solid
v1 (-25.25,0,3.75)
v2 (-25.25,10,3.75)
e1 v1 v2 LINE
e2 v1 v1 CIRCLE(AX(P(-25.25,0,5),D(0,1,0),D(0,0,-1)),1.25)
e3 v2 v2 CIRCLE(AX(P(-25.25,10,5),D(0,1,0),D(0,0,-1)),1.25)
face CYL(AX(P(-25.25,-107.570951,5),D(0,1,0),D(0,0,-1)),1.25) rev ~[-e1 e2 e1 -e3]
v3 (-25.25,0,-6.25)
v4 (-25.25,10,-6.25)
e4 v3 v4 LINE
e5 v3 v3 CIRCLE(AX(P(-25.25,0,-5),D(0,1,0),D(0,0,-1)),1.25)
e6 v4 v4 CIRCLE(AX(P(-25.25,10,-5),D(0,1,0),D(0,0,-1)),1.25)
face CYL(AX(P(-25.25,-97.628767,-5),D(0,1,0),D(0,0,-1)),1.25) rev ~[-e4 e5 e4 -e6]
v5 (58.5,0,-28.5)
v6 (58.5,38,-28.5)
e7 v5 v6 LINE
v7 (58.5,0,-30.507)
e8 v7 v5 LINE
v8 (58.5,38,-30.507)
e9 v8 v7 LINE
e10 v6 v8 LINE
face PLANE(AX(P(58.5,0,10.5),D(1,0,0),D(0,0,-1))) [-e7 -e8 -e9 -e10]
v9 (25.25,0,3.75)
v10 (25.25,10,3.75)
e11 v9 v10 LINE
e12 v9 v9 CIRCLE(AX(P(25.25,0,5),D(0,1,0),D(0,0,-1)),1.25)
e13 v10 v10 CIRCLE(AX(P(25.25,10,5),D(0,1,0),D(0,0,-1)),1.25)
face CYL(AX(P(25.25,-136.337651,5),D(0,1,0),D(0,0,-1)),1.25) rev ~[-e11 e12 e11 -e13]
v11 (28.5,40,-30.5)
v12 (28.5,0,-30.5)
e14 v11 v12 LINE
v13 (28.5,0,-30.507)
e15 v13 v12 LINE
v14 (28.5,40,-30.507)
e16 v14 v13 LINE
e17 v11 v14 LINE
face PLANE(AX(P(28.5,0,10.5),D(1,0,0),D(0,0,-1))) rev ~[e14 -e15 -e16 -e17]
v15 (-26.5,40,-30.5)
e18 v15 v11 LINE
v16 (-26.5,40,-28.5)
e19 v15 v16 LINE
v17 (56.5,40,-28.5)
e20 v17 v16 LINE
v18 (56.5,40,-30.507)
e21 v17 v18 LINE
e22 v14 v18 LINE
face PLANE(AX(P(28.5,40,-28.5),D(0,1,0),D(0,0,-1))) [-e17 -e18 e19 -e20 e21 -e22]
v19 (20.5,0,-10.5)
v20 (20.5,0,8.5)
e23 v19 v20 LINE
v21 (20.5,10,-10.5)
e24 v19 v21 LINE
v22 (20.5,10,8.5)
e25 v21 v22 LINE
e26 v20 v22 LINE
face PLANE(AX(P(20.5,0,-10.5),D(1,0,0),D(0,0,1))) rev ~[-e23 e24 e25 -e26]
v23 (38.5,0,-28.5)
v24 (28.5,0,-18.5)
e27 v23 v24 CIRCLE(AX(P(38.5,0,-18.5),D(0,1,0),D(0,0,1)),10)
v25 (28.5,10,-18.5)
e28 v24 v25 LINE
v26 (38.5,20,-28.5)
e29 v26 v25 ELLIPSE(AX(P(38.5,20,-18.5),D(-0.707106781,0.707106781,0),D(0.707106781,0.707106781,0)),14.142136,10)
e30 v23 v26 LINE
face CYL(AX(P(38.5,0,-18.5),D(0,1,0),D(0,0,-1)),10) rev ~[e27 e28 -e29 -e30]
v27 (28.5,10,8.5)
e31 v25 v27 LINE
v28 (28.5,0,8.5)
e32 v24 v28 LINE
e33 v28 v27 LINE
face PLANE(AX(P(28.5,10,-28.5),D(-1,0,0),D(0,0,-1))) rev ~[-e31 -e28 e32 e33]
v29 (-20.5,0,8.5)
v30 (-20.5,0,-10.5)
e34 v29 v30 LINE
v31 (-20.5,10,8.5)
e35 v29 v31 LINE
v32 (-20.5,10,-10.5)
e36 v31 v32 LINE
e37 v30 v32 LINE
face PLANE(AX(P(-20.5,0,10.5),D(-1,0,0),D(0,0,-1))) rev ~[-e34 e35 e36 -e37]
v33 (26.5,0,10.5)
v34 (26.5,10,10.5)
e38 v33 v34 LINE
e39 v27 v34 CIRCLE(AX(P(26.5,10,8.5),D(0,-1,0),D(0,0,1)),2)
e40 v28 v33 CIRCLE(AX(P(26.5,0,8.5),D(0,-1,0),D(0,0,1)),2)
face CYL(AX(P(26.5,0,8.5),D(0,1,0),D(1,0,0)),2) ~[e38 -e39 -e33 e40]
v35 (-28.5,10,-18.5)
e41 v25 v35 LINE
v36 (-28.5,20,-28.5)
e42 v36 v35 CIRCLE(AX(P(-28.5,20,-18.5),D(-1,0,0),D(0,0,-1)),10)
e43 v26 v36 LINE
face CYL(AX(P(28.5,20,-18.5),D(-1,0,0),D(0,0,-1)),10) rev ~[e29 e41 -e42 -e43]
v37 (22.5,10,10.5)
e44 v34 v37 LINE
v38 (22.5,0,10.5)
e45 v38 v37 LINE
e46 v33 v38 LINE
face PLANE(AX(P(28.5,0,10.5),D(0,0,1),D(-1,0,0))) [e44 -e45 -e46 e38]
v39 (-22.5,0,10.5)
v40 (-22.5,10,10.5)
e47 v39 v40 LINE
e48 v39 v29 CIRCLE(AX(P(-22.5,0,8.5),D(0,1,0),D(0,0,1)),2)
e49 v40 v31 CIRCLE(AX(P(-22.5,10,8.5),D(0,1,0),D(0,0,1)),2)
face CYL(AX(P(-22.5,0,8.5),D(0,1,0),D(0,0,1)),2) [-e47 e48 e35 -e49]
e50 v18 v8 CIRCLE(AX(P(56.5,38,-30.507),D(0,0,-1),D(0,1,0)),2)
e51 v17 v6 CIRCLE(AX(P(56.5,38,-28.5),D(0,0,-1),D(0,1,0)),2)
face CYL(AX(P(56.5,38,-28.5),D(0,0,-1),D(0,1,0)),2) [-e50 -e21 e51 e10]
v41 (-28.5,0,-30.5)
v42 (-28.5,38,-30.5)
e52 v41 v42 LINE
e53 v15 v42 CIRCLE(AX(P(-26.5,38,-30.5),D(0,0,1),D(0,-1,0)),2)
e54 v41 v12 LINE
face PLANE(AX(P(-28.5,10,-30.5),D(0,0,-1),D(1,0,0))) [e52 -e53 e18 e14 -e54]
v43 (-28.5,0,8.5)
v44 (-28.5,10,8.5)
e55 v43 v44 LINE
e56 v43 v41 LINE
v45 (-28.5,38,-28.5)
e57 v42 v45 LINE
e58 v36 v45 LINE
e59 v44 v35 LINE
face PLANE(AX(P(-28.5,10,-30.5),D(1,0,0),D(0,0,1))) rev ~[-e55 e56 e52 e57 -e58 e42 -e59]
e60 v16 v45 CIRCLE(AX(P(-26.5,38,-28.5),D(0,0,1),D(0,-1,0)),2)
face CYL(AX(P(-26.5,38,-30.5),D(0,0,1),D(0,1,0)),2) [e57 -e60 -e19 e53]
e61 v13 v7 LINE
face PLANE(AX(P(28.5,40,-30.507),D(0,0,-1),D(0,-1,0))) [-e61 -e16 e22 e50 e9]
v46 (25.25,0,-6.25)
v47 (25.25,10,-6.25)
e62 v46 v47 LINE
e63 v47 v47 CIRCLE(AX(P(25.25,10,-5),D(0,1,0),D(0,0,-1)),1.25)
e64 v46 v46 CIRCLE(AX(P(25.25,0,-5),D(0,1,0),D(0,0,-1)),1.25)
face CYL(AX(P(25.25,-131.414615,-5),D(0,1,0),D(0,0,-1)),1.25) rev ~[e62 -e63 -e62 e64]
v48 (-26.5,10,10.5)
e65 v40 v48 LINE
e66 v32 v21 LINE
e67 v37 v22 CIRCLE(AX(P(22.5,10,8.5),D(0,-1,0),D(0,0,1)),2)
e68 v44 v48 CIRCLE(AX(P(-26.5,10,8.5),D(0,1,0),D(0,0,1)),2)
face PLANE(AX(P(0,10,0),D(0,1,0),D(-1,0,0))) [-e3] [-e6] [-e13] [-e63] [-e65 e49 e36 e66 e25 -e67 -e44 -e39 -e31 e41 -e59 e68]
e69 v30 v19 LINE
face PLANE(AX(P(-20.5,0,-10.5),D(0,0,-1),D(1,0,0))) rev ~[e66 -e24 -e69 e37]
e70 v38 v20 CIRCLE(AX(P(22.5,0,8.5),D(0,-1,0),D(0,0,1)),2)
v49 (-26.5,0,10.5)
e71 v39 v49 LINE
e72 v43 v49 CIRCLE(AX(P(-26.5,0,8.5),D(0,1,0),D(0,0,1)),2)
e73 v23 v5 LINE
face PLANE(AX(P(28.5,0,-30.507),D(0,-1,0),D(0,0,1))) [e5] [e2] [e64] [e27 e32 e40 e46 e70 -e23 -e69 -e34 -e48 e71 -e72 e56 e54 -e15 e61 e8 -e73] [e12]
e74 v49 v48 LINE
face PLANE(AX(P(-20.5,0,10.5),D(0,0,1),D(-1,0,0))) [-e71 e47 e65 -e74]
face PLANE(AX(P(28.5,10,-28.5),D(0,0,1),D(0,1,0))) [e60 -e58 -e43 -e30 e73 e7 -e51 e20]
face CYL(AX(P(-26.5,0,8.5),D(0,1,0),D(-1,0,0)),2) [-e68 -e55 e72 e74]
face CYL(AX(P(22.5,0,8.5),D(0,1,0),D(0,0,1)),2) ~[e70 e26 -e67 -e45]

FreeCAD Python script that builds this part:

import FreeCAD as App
import Part
import Sketcher
from FreeCAD import Vector


def edges_at(feature, points):
    """Names of the edges that pass closest to the given points."""
    edges = feature.Shape.Edges
    near = lambda p: min(range(len(edges)), key=lambda i: edges[i].distToShape(Part.Vertex(*p))[0])
    return sorted({f"Edge{near(p) + 1}" for p in points})


def add_polygon(sketch, points):
    """Adds a closed chain of lines whose ends are joined by coincident constraints."""
    first, n = sketch.GeometryCount, len(points)
    for a, b in zip(points, points[1:] + points[:1]):
        sketch.addGeometry(Part.LineSegment(App.Vector(*a, 0), App.Vector(*b, 0)), False)
    for i in range(n):
        sketch.addConstraint(Sketcher.Constraint("Coincident", first + i, 2, first + (i + 1) % n, 1))

doc = App.newDocument("Part")
body = doc.addObject("PartDesign::Body", "Body")

# Sketch on XZ plane
sketch1 = body.newObject("Sketcher::SketchObject", "Sketch")
sketch1.AttachmentSupport = (doc.getObject("XZ_Plane"), [""])
sketch1.MapMode = "FlatFace"
add_polygon(sketch1, [(20.5, -10.5), (20.5, 10.5), (28.5, 10.5), (28.5, -30.5), (-28.5, -30.5), (-28.5, 10.5), (-20.5, 10.5), (-20.5, -10.5)])  # lines 0-7
sketch1.addConstraint(Sketcher.Constraint("Vertical", 0))
sketch1.addConstraint(Sketcher.Constraint("Horizontal", 1))
sketch1.addConstraint(Sketcher.Constraint("Vertical", 2))
sketch1.addConstraint(Sketcher.Constraint("Horizontal", 3))
sketch1.addConstraint(Sketcher.Constraint("Vertical", 4))
sketch1.addConstraint(Sketcher.Constraint("Horizontal", 5))
sketch1.addConstraint(Sketcher.Constraint("Vertical", 6))
sketch1.addConstraint(Sketcher.Constraint("Horizontal", 7))
sketch1.addConstraint(Sketcher.Constraint("Symmetric", 0, 2, 6, 2, -1, 1))
sketch1.addConstraint(Sketcher.Constraint("Symmetric", 1, 2, 4, 2, -2))
sketch1.addConstraint(Sketcher.Constraint("Equal", 7, 2))
sketch1.addConstraint(Sketcher.Constraint("DistanceX", 1, 1, 1, 2, 8.0))
sketch1.addConstraint(Sketcher.Constraint("DistanceX", 7, 1, 7, 2, 41.0))
sketch1.addConstraint(Sketcher.Constraint("DistanceY", 0, 1, 0, 2, 21.0))
pad1 = body.newObject("PartDesign::Pad", "Pad")
pad1.Profile = sketch1
pad1.Length = 10
pad1.Reversed = True

# Sketch on XZ plane
sketch2 = body.newObject("Sketcher::SketchObject", "Sketch001")
sketch2.AttachmentSupport = (doc.getObject("XZ_Plane"), [""])
sketch2.MapMode = "FlatFace"
sketch2.addGeometry(Part.Circle(Vector(-25.25, 5, 0), Vector(0, 0, 1), 1.25), False)
sketch2.addGeometry(Part.Circle(Vector(-25.25, -5, 0), Vector(0, 0, 1), 1.25), False)
sketch2.addGeometry(Part.Circle(Vector(25.25, 5, 0), Vector(0, 0, 1), 1.25), False)
sketch2.addGeometry(Part.Circle(Vector(25.25, -5, 0), Vector(0, 0, 1), 1.25), False)
sketch2.addConstraint(Sketcher.Constraint("Equal", 0, 1))
sketch2.addConstraint(Sketcher.Constraint("Equal", 1, 2))
sketch2.addConstraint(Sketcher.Constraint("Equal", 2, 3))
sketch2.addConstraint(Sketcher.Constraint("Symmetric", 1, 3, 2, 3, -1, 1))
sketch2.addConstraint(Sketcher.Constraint("Symmetric", 0, 3, 3, 3, -1, 1))
sketch2.addConstraint(Sketcher.Constraint("Symmetric", 0, 3, 2, 3, -2))
sketch2.addConstraint(Sketcher.Constraint("Diameter", 0, 2.5))
sketch2.addConstraint(Sketcher.Constraint("DistanceY", -1, 1, 0, 3, 5.0))
sketch2.addConstraint(Sketcher.Constraint("DistanceX", 0, 3, 2, 3, 50.5))
doc.recompute()
hole = body.newObject("PartDesign::Hole", "Hole")
hole.Profile = sketch2
hole.ThreadType = "None"
hole.Diameter = 2.5
hole.DepthType = "ThroughAll"

# Sketch on XZ plane
sketch3 = body.newObject("Sketcher::SketchObject", "Sketch002")
sketch3.AttachmentSupport = (doc.getObject("XZ_Plane"), [""])
sketch3.MapMode = "FlatFace"
sketch3.AttachmentOffset = App.Placement(Vector(0, 0, -10), App.Rotation())
add_polygon(sketch3, [(28.5, -30.5), (-28.5, -30.5), (-28.5, -28.5), (28.5, -28.5)])  # lines 0-3
sketch3.addConstraint(Sketcher.Constraint("Horizontal", 0))
sketch3.addConstraint(Sketcher.Constraint("Vertical", 1))
sketch3.addConstraint(Sketcher.Constraint("Horizontal", 2))
sketch3.addConstraint(Sketcher.Constraint("Vertical", 3))
sketch3.addConstraint(Sketcher.Constraint("DistanceY", 1, 1, 1, 2, 2.0))
sketch3.addConstraint(Sketcher.Constraint("DistanceX", 0, 2, 0, 1, 57.0))
sketch3.addConstraint(Sketcher.Constraint("DistanceX", 0, 2, -1, 1, 28.5))
sketch3.addConstraint(Sketcher.Constraint("DistanceY", 0, 2, -1, 1, 30.5))
pad2 = body.newObject("PartDesign::Pad", "Pad001")
pad2.Profile = sketch3
pad2.Length = 30
pad2.Reversed = True

# Sketch on YZ plane
sketch4 = body.newObject("Sketcher::SketchObject", "Sketch003")
sketch4.AttachmentSupport = (doc.getObject("YZ_Plane"), [""])
sketch4.MapMode = "FlatFace"
sketch4.AttachmentOffset = App.Placement(Vector(0, 0, 28.5), App.Rotation())
add_polygon(sketch4, [(40, -28.5), (0, -28.5), (0, -30.507), (40, -30.507)])  # lines 0-3
sketch4.addConstraint(Sketcher.Constraint("Horizontal", 0))
sketch4.addConstraint(Sketcher.Constraint("Vertical", 1))
sketch4.addConstraint(Sketcher.Constraint("Horizontal", 2))
sketch4.addConstraint(Sketcher.Constraint("Vertical", 3))
sketch4.addConstraint(Sketcher.Constraint("PointOnObject", 0, 2, -2))
sketch4.addConstraint(Sketcher.Constraint("DistanceX", 0, 2, 0, 1, 40.0))
sketch4.addConstraint(Sketcher.Constraint("DistanceY", 0, 2, -1, 1, 28.5))
sketch4.addConstraint(Sketcher.Constraint("DistanceY", 1, 2, 1, 1, 2.007))
pad3 = body.newObject("PartDesign::Pad", "Pad002")
pad3.Profile = sketch4
pad3.Length = 30
doc.recompute()

fillet = body.newObject("PartDesign::Fillet", "Fillet")
fillet.Base = (pad3, edges_at(pad3, [(28.5, 5, -28.5), (0, 10, -28.5)]))
fillet.Radius = 10
doc.recompute()

fillet2 = body.newObject("PartDesign::Fillet", "Fillet001")
fillet2.Base = (fillet, edges_at(fillet, [
    (58.5, 40, -29.503),
    (-28.5, 40, -29.5),
    (28.5, 5, 10.5),
    (20.5, 5, 10.5),
    (-20.5, 5, 10.5),
    (-28.5, 5, 10.5),
]))
fillet2.Radius = 2

doc.recompute()
